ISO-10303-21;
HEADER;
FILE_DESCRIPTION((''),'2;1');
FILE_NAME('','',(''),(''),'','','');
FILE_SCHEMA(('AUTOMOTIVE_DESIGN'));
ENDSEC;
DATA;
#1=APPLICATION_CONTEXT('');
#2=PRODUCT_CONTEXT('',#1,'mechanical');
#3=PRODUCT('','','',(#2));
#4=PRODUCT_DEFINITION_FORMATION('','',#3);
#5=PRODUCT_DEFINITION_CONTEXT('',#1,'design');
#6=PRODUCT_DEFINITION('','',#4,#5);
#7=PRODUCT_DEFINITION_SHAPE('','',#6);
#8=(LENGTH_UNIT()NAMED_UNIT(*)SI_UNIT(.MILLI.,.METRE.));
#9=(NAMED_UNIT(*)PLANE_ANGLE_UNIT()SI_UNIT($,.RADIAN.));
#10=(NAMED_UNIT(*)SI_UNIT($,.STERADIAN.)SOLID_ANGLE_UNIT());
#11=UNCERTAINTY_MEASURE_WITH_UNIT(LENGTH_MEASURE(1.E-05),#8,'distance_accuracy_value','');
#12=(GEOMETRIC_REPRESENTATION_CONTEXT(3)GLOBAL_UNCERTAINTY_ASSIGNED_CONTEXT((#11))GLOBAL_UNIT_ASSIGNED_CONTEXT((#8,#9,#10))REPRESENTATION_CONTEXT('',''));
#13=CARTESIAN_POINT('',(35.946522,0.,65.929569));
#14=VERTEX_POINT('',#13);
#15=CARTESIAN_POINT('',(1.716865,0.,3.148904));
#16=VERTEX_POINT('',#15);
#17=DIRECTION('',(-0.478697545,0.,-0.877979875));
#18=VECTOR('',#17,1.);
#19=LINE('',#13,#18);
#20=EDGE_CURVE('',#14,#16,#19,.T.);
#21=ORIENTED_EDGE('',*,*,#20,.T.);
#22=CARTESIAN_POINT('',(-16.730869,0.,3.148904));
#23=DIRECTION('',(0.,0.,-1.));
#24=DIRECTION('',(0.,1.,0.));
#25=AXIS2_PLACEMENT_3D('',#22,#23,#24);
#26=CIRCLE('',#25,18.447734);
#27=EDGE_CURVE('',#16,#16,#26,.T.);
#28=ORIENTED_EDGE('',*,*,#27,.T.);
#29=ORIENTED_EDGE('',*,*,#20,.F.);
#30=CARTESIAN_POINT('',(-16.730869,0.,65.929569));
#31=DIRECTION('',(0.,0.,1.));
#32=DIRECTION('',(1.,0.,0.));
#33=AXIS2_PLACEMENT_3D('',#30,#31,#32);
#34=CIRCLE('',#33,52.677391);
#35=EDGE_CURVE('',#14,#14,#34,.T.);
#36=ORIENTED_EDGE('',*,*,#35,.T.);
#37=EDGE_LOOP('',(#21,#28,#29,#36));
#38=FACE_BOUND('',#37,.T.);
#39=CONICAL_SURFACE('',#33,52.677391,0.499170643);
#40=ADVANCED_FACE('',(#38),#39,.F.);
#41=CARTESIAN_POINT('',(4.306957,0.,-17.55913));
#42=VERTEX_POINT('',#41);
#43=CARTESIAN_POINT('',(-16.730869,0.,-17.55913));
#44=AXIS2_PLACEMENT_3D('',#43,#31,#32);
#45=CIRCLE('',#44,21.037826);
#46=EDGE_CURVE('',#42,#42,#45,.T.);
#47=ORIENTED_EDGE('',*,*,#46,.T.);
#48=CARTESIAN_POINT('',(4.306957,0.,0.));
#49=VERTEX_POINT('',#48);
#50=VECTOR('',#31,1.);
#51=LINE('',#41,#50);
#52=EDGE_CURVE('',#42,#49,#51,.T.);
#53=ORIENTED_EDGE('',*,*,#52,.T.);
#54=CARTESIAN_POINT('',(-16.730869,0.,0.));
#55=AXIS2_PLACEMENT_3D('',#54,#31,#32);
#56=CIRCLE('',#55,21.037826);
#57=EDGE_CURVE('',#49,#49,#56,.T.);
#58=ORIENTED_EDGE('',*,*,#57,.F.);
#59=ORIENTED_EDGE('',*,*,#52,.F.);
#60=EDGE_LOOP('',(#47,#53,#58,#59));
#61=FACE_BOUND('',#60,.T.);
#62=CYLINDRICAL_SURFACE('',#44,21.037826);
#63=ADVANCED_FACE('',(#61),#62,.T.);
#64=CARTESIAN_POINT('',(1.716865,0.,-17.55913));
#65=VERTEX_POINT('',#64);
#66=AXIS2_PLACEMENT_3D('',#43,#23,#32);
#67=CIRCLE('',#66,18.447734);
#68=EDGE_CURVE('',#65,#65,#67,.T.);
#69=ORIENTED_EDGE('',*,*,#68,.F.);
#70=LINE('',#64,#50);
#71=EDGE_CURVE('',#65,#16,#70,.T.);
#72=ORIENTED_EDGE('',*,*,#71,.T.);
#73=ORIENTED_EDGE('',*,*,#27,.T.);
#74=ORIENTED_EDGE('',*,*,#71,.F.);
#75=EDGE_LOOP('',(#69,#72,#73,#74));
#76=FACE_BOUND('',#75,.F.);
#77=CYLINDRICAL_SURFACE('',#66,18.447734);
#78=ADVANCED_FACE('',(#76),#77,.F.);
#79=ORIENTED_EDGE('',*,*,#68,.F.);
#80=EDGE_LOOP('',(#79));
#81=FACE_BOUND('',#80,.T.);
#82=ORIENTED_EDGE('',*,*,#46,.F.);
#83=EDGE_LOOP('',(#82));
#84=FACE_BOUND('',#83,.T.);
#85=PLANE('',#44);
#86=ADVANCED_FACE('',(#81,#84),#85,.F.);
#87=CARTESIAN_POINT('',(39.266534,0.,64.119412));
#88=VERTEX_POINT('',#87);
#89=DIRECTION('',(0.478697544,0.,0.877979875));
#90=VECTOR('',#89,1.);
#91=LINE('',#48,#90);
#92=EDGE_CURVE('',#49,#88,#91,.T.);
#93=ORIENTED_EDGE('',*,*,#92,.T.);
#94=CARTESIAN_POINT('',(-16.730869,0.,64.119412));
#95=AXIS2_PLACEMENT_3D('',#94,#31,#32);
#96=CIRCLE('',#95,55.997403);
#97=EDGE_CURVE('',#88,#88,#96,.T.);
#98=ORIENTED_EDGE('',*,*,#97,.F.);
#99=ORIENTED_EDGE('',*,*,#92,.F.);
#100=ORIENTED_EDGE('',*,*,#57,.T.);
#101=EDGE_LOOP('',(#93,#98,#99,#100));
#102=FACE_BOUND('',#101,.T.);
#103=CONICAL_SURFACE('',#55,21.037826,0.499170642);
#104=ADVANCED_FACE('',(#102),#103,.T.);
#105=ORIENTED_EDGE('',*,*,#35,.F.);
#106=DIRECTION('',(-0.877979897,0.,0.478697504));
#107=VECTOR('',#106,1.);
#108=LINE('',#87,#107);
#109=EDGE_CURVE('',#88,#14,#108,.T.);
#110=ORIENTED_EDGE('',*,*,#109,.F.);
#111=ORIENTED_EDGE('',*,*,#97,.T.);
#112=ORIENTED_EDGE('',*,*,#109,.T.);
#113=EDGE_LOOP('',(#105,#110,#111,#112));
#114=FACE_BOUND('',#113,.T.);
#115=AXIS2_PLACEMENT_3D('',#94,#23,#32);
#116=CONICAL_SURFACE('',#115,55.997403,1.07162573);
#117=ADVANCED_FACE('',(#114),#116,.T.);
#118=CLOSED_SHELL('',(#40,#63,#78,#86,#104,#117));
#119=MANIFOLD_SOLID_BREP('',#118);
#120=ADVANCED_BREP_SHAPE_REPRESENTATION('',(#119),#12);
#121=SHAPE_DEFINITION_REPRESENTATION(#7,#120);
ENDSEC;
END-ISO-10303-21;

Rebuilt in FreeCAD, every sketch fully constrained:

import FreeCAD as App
import Part
import Sketcher
from FreeCAD import Vector
Q = App.Units.Quantity


def add_polygon(sketch, points):
    """Adds a closed chain of lines whose ends are joined by coincident constraints."""
    first, n = sketch.GeometryCount, len(points)
    for a, b in zip(points, points[1:] + points[:1]):
        sketch.addGeometry(Part.LineSegment(App.Vector(*a, 0), App.Vector(*b, 0)), False)
    for i in range(n):
        sketch.addConstraint(Sketcher.Constraint("Coincident", first + i, 2, first + (i + 1) % n, 1))

doc = App.newDocument("Part")
body = doc.addObject("PartDesign::Body", "Body")

# Sketch on XZ plane
sketch1 = body.newObject("Sketcher::SketchObject", "Sketch")
sketch1.AttachmentSupport = (doc.getObject("XZ_Plane"), [""])
sketch1.MapMode = "FlatFace"
add_polygon(sketch1, [(35.946522, 65.929569), (0.722543, 1.325217), (-16.730869, 1.325217), (-16.730869, -17.55913), (4.306957, -17.55913), (4.306957, 0), (39.266534, 64.119412)])  # lines 0-6
sketch1.addGeometry(Part.LineSegment(Vector(-16.730869, -17.55913, 0), Vector(-16.730869, 65.929569, 0)), True)  # axis
sketch1.addConstraint([
    Sketcher.Constraint("Horizontal", 1),
    Sketcher.Constraint("Vertical", 2),
    Sketcher.Constraint("Horizontal", 3),
    Sketcher.Constraint("Vertical", 4),
    Sketcher.Constraint("Vertical", 7),
    Sketcher.Constraint("Coincident", 7, 1, 2, 2),
    Sketcher.Constraint("PointOnObject", 4, 2, -1),
    Sketcher.Constraint("DistanceY", 7, 1, 7, 2, 83.488699),
    Sketcher.Constraint("DistanceX", 1, 2, 1, 1, 17.453412),
    Sketcher.Constraint("DistanceY", 4, 1, 4, 2, 17.55913),
    Sketcher.Constraint("DistanceY", 3, 2, 6, 2, 83.488699),
    Sketcher.Constraint("Distance", 6, 3.781421),
    Sketcher.Constraint("DistanceX", 3, 1, 3, 2, 21.037826),
    Sketcher.Constraint("DistanceY", 2, 2, 2, 1, 18.884347),
    Sketcher.Constraint("DistanceX", 1, 2, -1, 1, 16.730869),
    Sketcher.Constraint("DistanceY", -1, 1, 5, 2, 64.119412),
    Sketcher.Constraint("DistanceX", 0, 2, 5, 2, 38.543991),
])
revolution = body.newObject("PartDesign::Revolution", "Revolution")
revolution.Profile = sketch1
revolution.ReferenceAxis = (sketch1, ["Axis0"])
revolution.Angle = 360

# Sketch on XY plane
sketch2 = body.newObject("Sketcher::SketchObject", "Sketch001")
sketch2.AttachmentSupport = (doc.getObject("XY_Plane"), [""])
sketch2.MapMode = "FlatFace"
sketch2.AttachmentOffset = App.Placement(Vector(0, 0, -17.55913), App.Rotation())
sketch2.addGeometry(Part.Circle(Vector(-17, 0, 0), Vector(0, 0, 1), 18), False)
sketch2.addConstraint([
    Sketcher.Constraint("PointOnObject", 0, 3, -1),
    Sketcher.Constraint("Diameter", 0, 36.895468),
    Sketcher.Constraint("DistanceX", 0, 3, -1, 1, 16.730869),
])
pocket1 = body.newObject("PartDesign::Pocket", "Pocket")
pocket1.Profile = sketch2
pocket1.Length = Q("2 in")
pocket1.Reversed = True

doc.recompute()
